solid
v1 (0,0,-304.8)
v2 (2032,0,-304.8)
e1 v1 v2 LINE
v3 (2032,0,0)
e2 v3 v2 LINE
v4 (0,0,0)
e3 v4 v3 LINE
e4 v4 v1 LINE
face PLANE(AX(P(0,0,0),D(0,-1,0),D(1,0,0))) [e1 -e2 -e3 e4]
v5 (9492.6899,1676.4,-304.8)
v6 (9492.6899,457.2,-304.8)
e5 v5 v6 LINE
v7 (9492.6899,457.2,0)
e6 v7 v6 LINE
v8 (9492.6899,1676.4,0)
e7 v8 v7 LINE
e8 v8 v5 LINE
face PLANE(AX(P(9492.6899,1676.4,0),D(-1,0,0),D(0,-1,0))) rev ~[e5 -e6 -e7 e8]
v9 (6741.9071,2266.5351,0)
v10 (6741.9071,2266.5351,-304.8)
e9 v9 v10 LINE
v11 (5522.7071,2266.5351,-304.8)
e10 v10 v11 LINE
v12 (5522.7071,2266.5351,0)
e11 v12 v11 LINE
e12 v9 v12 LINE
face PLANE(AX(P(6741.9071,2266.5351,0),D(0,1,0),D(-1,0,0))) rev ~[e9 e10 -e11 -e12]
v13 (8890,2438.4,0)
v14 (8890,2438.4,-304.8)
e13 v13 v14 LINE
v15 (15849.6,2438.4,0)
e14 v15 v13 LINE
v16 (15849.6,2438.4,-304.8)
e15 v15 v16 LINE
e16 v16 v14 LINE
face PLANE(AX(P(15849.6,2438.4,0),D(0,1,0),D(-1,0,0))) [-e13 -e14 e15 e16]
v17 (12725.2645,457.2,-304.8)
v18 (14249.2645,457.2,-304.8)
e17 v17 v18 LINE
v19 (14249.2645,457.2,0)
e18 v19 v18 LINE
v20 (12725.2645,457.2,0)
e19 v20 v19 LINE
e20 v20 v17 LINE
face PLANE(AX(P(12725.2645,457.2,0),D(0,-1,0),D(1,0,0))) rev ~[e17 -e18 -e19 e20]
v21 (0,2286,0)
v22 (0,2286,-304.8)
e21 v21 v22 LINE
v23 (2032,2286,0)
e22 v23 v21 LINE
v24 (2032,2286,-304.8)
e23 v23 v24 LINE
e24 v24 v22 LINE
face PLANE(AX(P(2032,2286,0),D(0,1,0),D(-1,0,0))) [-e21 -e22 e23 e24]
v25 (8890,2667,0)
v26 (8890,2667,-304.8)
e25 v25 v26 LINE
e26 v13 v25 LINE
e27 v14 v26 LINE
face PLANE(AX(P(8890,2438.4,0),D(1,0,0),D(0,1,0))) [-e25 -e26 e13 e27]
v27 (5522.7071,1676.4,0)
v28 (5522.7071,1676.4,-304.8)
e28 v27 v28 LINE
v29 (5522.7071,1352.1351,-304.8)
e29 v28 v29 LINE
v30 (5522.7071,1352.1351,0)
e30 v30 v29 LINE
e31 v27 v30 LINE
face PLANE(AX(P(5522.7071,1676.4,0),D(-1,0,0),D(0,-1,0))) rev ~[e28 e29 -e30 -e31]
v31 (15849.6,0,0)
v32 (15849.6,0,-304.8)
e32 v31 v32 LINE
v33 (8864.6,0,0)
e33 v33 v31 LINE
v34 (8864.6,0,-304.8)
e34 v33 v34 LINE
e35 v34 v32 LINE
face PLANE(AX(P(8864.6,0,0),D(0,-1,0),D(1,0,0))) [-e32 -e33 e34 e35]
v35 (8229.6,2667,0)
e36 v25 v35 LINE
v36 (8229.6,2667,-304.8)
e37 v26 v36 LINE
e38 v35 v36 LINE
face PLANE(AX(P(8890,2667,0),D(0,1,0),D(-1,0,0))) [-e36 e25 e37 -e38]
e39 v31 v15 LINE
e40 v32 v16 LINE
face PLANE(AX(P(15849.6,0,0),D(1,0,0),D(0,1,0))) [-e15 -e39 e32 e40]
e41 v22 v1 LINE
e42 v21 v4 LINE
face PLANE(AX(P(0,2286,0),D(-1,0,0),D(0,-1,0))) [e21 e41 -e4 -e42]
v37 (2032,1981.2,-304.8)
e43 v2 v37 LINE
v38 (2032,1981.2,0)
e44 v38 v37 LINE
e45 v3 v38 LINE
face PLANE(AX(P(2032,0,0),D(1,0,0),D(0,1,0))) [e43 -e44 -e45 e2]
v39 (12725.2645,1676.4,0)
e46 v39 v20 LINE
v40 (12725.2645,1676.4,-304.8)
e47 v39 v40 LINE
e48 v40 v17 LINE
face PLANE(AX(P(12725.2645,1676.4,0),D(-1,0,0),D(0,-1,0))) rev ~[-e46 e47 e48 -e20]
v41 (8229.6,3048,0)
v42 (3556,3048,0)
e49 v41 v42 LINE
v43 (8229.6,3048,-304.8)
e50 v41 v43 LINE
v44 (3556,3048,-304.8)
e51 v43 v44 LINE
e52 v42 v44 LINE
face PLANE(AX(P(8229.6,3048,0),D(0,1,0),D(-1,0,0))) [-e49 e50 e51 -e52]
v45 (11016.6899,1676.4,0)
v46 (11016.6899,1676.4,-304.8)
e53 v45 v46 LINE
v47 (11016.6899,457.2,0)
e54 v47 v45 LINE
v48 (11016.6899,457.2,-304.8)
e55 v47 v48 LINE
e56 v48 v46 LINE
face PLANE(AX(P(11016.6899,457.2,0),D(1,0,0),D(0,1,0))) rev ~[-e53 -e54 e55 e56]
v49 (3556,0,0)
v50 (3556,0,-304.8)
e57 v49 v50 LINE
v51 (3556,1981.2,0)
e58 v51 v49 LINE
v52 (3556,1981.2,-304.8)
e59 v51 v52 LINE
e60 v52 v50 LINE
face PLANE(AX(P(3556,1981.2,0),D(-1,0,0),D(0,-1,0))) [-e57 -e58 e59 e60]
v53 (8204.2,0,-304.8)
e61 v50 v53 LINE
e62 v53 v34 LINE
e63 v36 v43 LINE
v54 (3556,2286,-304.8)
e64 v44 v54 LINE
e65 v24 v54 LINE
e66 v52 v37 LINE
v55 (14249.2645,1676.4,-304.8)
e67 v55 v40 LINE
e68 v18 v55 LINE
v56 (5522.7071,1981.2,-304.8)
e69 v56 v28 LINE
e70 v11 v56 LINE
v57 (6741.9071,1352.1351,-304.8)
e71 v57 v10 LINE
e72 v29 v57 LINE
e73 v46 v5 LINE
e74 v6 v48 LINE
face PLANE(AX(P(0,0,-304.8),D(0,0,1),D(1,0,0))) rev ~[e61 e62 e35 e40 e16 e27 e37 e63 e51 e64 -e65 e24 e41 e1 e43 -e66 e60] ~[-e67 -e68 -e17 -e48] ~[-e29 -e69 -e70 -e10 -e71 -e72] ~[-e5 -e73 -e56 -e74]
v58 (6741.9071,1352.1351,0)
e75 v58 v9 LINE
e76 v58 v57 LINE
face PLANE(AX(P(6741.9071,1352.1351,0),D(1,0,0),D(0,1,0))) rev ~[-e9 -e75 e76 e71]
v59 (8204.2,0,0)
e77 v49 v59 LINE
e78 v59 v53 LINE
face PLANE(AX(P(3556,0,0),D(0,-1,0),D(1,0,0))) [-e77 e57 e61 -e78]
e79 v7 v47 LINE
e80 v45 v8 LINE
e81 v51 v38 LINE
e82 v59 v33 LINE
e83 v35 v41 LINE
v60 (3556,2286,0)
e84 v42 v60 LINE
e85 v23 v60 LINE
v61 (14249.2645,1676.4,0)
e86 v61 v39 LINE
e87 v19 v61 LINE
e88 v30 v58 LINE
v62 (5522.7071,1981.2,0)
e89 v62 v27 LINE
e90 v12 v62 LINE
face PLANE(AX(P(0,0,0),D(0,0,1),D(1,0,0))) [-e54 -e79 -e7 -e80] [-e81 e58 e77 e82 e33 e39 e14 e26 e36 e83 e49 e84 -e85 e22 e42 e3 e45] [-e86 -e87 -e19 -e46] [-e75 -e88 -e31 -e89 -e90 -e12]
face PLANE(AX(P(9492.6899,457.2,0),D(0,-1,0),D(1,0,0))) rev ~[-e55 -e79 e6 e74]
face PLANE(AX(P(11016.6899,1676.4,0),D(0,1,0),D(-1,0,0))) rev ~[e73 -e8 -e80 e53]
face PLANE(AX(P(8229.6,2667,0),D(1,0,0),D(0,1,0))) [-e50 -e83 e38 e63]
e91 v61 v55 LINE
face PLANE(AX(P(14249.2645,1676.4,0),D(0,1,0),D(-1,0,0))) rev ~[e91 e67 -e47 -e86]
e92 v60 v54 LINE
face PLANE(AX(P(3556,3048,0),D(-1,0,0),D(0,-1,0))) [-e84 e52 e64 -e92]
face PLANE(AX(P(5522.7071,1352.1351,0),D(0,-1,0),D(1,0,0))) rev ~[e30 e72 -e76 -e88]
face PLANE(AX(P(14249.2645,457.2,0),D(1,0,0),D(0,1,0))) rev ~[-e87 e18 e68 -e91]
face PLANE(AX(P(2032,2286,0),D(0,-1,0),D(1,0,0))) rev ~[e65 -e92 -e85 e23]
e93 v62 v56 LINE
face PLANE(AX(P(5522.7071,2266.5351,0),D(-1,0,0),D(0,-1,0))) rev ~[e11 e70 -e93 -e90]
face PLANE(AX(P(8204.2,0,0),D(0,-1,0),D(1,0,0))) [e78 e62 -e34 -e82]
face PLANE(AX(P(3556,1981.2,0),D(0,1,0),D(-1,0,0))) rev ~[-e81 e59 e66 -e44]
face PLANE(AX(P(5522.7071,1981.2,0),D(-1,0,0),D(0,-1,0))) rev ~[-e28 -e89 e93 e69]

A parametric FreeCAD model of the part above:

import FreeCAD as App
import Part
import Sketcher

V = App.Vector
Q = App.Units.Quantity

doc = App.newDocument("Part")
params = doc.addObject("Spreadsheet::Sheet", "Params")
for row, (alias, value) in enumerate([
    ("sketch1_width", "80 in"),
    ("sketch1_width2", "60 in"),
    ("sketch1_width3", "484 in"),
    ("sketch1_width4", "274 in"),
    ("sketch1_width5", "26 in"),
    ("pad1_length", "12 in"),
], start=1):
    params.set(f"A{row}", alias)
    params.set(f"B{row}", "=" + value)
    params.setAlias(f"B{row}", alias)

body = doc.addObject("PartDesign::Body", "Body")

sketch1 = doc.addObject("Sketcher::SketchObject", "Sketch")
body.addObject(sketch1)
sketch1.AttachmentSupport = (doc.XY_Plane, [""])
sketch1.MapMode = "FlatFace"
sketch1.addGeometry(Part.LineSegment(V(0, 2286, 0), V(0, 0, 0)), False)
sketch1.addGeometry(Part.LineSegment(V(0, 0, 0), V(2032, 0, 0)), False)
sketch1.addGeometry(Part.LineSegment(V(2032, 0, 0), V(2032, 1981, 0)), False)
sketch1.addGeometry(Part.LineSegment(V(2032, 1981, 0), V(3556, 1981, 0)), False)
sketch1.addGeometry(Part.LineSegment(V(3556, 1981, 0), V(3556, 0, 0)), False)
sketch1.addGeometry(Part.LineSegment(V(3556, 0, 0), V(15850, 0, 0)), False)
sketch1.addGeometry(Part.LineSegment(V(15850, 0, 0), V(15850, 2438, 0)), False)
sketch1.addGeometry(Part.LineSegment(V(15850, 2438, 0), V(8890, 2438, 0)), False)
sketch1.addGeometry(Part.LineSegment(V(8890, 2438, 0), V(8890, 2667, 0)), False)
sketch1.addGeometry(Part.LineSegment(V(8890, 2667, 0), V(8230, 2667, 0)), False)
sketch1.addGeometry(Part.LineSegment(V(8230, 2667, 0), V(8230, 3048, 0)), False)
sketch1.addGeometry(Part.LineSegment(V(8230, 3048, 0), V(3556, 3048, 0)), False)
sketch1.addGeometry(Part.LineSegment(V(3556, 3048, 0), V(3556, 2286, 0)), False)
sketch1.addGeometry(Part.LineSegment(V(3556, 2286, 0), V(0, 2286, 0)), False)
sketch1.addGeometry(Part.LineSegment(V(11017, 457, 0), V(9493, 457, 0)), False)
sketch1.addGeometry(Part.LineSegment(V(9493, 457, 0), V(9493, 1676, 0)), False)
sketch1.addGeometry(Part.LineSegment(V(9493, 1676, 0), V(11017, 1676, 0)), False)
sketch1.addGeometry(Part.LineSegment(V(11017, 1676, 0), V(11017, 457, 0)), False)
sketch1.addGeometry(Part.LineSegment(V(14249, 457, 0), V(12725, 457, 0)), False)
sketch1.addGeometry(Part.LineSegment(V(12725, 457, 0), V(12725, 1676, 0)), False)
sketch1.addGeometry(Part.LineSegment(V(12725, 1676, 0), V(14249, 1676, 0)), False)
sketch1.addGeometry(Part.LineSegment(V(14249, 1676, 0), V(14249, 457, 0)), False)
sketch1.addGeometry(Part.LineSegment(V(6742, 1352, 0), V(5523, 1352, 0)), False)
sketch1.addGeometry(Part.LineSegment(V(5523, 1352, 0), V(5523, 2267, 0)), False)
sketch1.addGeometry(Part.LineSegment(V(5523, 2267, 0), V(6742, 2267, 0)), False)
sketch1.addGeometry(Part.LineSegment(V(6742, 2267, 0), V(6742, 1352, 0)), False)
sketch1.addConstraint(Sketcher.Constraint("Coincident", 0, 2, 1, 1))
sketch1.addConstraint(Sketcher.Constraint("Coincident", 1, 2, 2, 1))
sketch1.addConstraint(Sketcher.Constraint("Coincident", 2, 2, 3, 1))
sketch1.addConstraint(Sketcher.Constraint("Coincident", 3, 2, 4, 1))
sketch1.addConstraint(Sketcher.Constraint("Coincident", 4, 2, 5, 1))
sketch1.addConstraint(Sketcher.Constraint("Coincident", 5, 2, 6, 1))
sketch1.addConstraint(Sketcher.Constraint("Coincident", 6, 2, 7, 1))
sketch1.addConstraint(Sketcher.Constraint("Coincident", 7, 2, 8, 1))
sketch1.addConstraint(Sketcher.Constraint("Coincident", 8, 2, 9, 1))
sketch1.addConstraint(Sketcher.Constraint("Coincident", 9, 2, 10, 1))
sketch1.addConstraint(Sketcher.Constraint("Coincident", 10, 2, 11, 1))
sketch1.addConstraint(Sketcher.Constraint("Coincident", 11, 2, 12, 1))
sketch1.addConstraint(Sketcher.Constraint("Coincident", 12, 2, 13, 1))
sketch1.addConstraint(Sketcher.Constraint("Coincident", 13, 2, 0, 1))
sketch1.addConstraint(Sketcher.Constraint("Coincident", 14, 2, 15, 1))
sketch1.addConstraint(Sketcher.Constraint("Coincident", 15, 2, 16, 1))
sketch1.addConstraint(Sketcher.Constraint("Coincident", 16, 2, 17, 1))
sketch1.addConstraint(Sketcher.Constraint("Coincident", 17, 2, 14, 1))
sketch1.addConstraint(Sketcher.Constraint("Coincident", 18, 2, 19, 1))
sketch1.addConstraint(Sketcher.Constraint("Coincident", 19, 2, 20, 1))
sketch1.addConstraint(Sketcher.Constraint("Coincident", 20, 2, 21, 1))
sketch1.addConstraint(Sketcher.Constraint("Coincident", 21, 2, 18, 1))
sketch1.addConstraint(Sketcher.Constraint("Coincident", 22, 2, 23, 1))
sketch1.addConstraint(Sketcher.Constraint("Coincident", 23, 2, 24, 1))
sketch1.addConstraint(Sketcher.Constraint("Coincident", 24, 2, 25, 1))
sketch1.addConstraint(Sketcher.Constraint("Coincident", 25, 2, 22, 1))
sketch1.addConstraint(Sketcher.Constraint("Vertical", 0))
sketch1.addConstraint(Sketcher.Constraint("Horizontal", 1))
sketch1.addConstraint(Sketcher.Constraint("Vertical", 2))
sketch1.addConstraint(Sketcher.Constraint("Horizontal", 3))
sketch1.addConstraint(Sketcher.Constraint("Vertical", 4))
sketch1.addConstraint(Sketcher.Constraint("Horizontal", 5))
sketch1.addConstraint(Sketcher.Constraint("Vertical", 6))
sketch1.addConstraint(Sketcher.Constraint("Horizontal", 7))
sketch1.addConstraint(Sketcher.Constraint("Vertical", 8))
sketch1.addConstraint(Sketcher.Constraint("Horizontal", 9))
sketch1.addConstraint(Sketcher.Constraint("Vertical", 10))
sketch1.addConstraint(Sketcher.Constraint("Horizontal", 11))
sketch1.addConstraint(Sketcher.Constraint("Vertical", 12))
sketch1.addConstraint(Sketcher.Constraint("Horizontal", 13))
sketch1.addConstraint(Sketcher.Constraint("Horizontal", 14))
sketch1.addConstraint(Sketcher.Constraint("Vertical", 15))
sketch1.addConstraint(Sketcher.Constraint("Horizontal", 16))
sketch1.addConstraint(Sketcher.Constraint("Vertical", 17))
sketch1.addConstraint(Sketcher.Constraint("Horizontal", 18))
sketch1.addConstraint(Sketcher.Constraint("Vertical", 19))
sketch1.addConstraint(Sketcher.Constraint("Horizontal", 20))
sketch1.addConstraint(Sketcher.Constraint("Vertical", 21))
sketch1.addConstraint(Sketcher.Constraint("Horizontal", 22))
sketch1.addConstraint(Sketcher.Constraint("Vertical", 23))
sketch1.addConstraint(Sketcher.Constraint("Horizontal", 24))
sketch1.addConstraint(Sketcher.Constraint("Vertical", 25))
sketch1.addConstraint(Sketcher.Constraint("Coincident", 0, 2, -1, 1))
sketch1.addConstraint(Sketcher.Constraint("PointOnObject", 4, 2, -1))
sketch1.addConstraint(Sketcher.Constraint("Horizontal", 17, 2, 18, 2))
sketch1.addConstraint(Sketcher.Constraint("Horizontal", 16, 2, 19, 2))
sketch1.addConstraint(Sketcher.Constraint("Vertical", 4, 2, 11, 2))
sketch1.addConstraint(Sketcher.Constraint("Equal", 3, 14))
sketch1.addConstraint(Sketcher.Constraint("Equal", 16, 18))
sketch1.addConstraint(Sketcher.Constraint("Equal", 24, 15))
sketch1.addConstraint(Sketcher.Constraint("DistanceX", 1, 1, 1, 2, Q("80 in")))
sketch1.addConstraint(Sketcher.Constraint("DistanceX", 3, 1, 3, 2, Q("60 in")))
sketch1.addConstraint(Sketcher.Constraint("DistanceX", 5, 1, 5, 2, Q("484 in")))
sketch1.addConstraint(Sketcher.Constraint("DistanceX", 7, 2, 7, 1, Q("274 in")))
sketch1.addConstraint(Sketcher.Constraint("DistanceX", 9, 2, 9, 1, Q("26 in")))
sketch1.addConstraint(Sketcher.Constraint("DistanceX", 22, 2, 22, 1, Q("48 in")))
sketch1.addConstraint(Sketcher.Constraint("DistanceY", 0, 2, 0, 1, Q("90 in")))
sketch1.addConstraint(Sketcher.Constraint("DistanceY", 6, 1, 6, 2, Q("96 in")))
sketch1.addConstraint(Sketcher.Constraint("DistanceY", 23, 1, 23, 2, Q("36 in")))
sketch1.addConstraint(Sketcher.Constraint("DistanceY", -1, 1, 8, 2, Q("105 in")))
sketch1.addConstraint(Sketcher.Constraint("DistanceY", -1, 1, 10, 2, Q("120 in")))
sketch1.addConstraint(Sketcher.Constraint("DistanceY", 3, 2, 12, 2, Q("12 in")))
sketch1.addConstraint(Sketcher.Constraint("DistanceY", -1, 1, 14, 2, Q("18 in")))
sketch1.addConstraint(Sketcher.Constraint("DistanceX", -1, 1, 14, 2, Q("9492.69 mm")))
sketch1.addConstraint(Sketcher.Constraint("DistanceX", -1, 1, 18, 2, Q("12725.2645 mm")))
sketch1.addConstraint(Sketcher.Constraint("DistanceX", -1, 1, 22, 2, Q("217.4294094 in")))
sketch1.addConstraint(Sketcher.Constraint("DistanceY", -1, 1, 22, 2, Q("1352.135 mm")))
sketch1.setExpression("Constraints[60]", "Params.sketch1_width")
sketch1.setExpression("Constraints[61]", "Params.sketch1_width2")
sketch1.setExpression("Constraints[62]", "Params.sketch1_width3")
sketch1.setExpression("Constraints[63]", "Params.sketch1_width4")
sketch1.setExpression("Constraints[64]", "Params.sketch1_width5")
pad1 = doc.addObject("PartDesign::Pad", "Pad")
body.addObject(pad1)
pad1.Profile = sketch1
pad1.setExpression("Length", "Params.pad1_length")
pad1.Reversed = True

doc.recompute()
